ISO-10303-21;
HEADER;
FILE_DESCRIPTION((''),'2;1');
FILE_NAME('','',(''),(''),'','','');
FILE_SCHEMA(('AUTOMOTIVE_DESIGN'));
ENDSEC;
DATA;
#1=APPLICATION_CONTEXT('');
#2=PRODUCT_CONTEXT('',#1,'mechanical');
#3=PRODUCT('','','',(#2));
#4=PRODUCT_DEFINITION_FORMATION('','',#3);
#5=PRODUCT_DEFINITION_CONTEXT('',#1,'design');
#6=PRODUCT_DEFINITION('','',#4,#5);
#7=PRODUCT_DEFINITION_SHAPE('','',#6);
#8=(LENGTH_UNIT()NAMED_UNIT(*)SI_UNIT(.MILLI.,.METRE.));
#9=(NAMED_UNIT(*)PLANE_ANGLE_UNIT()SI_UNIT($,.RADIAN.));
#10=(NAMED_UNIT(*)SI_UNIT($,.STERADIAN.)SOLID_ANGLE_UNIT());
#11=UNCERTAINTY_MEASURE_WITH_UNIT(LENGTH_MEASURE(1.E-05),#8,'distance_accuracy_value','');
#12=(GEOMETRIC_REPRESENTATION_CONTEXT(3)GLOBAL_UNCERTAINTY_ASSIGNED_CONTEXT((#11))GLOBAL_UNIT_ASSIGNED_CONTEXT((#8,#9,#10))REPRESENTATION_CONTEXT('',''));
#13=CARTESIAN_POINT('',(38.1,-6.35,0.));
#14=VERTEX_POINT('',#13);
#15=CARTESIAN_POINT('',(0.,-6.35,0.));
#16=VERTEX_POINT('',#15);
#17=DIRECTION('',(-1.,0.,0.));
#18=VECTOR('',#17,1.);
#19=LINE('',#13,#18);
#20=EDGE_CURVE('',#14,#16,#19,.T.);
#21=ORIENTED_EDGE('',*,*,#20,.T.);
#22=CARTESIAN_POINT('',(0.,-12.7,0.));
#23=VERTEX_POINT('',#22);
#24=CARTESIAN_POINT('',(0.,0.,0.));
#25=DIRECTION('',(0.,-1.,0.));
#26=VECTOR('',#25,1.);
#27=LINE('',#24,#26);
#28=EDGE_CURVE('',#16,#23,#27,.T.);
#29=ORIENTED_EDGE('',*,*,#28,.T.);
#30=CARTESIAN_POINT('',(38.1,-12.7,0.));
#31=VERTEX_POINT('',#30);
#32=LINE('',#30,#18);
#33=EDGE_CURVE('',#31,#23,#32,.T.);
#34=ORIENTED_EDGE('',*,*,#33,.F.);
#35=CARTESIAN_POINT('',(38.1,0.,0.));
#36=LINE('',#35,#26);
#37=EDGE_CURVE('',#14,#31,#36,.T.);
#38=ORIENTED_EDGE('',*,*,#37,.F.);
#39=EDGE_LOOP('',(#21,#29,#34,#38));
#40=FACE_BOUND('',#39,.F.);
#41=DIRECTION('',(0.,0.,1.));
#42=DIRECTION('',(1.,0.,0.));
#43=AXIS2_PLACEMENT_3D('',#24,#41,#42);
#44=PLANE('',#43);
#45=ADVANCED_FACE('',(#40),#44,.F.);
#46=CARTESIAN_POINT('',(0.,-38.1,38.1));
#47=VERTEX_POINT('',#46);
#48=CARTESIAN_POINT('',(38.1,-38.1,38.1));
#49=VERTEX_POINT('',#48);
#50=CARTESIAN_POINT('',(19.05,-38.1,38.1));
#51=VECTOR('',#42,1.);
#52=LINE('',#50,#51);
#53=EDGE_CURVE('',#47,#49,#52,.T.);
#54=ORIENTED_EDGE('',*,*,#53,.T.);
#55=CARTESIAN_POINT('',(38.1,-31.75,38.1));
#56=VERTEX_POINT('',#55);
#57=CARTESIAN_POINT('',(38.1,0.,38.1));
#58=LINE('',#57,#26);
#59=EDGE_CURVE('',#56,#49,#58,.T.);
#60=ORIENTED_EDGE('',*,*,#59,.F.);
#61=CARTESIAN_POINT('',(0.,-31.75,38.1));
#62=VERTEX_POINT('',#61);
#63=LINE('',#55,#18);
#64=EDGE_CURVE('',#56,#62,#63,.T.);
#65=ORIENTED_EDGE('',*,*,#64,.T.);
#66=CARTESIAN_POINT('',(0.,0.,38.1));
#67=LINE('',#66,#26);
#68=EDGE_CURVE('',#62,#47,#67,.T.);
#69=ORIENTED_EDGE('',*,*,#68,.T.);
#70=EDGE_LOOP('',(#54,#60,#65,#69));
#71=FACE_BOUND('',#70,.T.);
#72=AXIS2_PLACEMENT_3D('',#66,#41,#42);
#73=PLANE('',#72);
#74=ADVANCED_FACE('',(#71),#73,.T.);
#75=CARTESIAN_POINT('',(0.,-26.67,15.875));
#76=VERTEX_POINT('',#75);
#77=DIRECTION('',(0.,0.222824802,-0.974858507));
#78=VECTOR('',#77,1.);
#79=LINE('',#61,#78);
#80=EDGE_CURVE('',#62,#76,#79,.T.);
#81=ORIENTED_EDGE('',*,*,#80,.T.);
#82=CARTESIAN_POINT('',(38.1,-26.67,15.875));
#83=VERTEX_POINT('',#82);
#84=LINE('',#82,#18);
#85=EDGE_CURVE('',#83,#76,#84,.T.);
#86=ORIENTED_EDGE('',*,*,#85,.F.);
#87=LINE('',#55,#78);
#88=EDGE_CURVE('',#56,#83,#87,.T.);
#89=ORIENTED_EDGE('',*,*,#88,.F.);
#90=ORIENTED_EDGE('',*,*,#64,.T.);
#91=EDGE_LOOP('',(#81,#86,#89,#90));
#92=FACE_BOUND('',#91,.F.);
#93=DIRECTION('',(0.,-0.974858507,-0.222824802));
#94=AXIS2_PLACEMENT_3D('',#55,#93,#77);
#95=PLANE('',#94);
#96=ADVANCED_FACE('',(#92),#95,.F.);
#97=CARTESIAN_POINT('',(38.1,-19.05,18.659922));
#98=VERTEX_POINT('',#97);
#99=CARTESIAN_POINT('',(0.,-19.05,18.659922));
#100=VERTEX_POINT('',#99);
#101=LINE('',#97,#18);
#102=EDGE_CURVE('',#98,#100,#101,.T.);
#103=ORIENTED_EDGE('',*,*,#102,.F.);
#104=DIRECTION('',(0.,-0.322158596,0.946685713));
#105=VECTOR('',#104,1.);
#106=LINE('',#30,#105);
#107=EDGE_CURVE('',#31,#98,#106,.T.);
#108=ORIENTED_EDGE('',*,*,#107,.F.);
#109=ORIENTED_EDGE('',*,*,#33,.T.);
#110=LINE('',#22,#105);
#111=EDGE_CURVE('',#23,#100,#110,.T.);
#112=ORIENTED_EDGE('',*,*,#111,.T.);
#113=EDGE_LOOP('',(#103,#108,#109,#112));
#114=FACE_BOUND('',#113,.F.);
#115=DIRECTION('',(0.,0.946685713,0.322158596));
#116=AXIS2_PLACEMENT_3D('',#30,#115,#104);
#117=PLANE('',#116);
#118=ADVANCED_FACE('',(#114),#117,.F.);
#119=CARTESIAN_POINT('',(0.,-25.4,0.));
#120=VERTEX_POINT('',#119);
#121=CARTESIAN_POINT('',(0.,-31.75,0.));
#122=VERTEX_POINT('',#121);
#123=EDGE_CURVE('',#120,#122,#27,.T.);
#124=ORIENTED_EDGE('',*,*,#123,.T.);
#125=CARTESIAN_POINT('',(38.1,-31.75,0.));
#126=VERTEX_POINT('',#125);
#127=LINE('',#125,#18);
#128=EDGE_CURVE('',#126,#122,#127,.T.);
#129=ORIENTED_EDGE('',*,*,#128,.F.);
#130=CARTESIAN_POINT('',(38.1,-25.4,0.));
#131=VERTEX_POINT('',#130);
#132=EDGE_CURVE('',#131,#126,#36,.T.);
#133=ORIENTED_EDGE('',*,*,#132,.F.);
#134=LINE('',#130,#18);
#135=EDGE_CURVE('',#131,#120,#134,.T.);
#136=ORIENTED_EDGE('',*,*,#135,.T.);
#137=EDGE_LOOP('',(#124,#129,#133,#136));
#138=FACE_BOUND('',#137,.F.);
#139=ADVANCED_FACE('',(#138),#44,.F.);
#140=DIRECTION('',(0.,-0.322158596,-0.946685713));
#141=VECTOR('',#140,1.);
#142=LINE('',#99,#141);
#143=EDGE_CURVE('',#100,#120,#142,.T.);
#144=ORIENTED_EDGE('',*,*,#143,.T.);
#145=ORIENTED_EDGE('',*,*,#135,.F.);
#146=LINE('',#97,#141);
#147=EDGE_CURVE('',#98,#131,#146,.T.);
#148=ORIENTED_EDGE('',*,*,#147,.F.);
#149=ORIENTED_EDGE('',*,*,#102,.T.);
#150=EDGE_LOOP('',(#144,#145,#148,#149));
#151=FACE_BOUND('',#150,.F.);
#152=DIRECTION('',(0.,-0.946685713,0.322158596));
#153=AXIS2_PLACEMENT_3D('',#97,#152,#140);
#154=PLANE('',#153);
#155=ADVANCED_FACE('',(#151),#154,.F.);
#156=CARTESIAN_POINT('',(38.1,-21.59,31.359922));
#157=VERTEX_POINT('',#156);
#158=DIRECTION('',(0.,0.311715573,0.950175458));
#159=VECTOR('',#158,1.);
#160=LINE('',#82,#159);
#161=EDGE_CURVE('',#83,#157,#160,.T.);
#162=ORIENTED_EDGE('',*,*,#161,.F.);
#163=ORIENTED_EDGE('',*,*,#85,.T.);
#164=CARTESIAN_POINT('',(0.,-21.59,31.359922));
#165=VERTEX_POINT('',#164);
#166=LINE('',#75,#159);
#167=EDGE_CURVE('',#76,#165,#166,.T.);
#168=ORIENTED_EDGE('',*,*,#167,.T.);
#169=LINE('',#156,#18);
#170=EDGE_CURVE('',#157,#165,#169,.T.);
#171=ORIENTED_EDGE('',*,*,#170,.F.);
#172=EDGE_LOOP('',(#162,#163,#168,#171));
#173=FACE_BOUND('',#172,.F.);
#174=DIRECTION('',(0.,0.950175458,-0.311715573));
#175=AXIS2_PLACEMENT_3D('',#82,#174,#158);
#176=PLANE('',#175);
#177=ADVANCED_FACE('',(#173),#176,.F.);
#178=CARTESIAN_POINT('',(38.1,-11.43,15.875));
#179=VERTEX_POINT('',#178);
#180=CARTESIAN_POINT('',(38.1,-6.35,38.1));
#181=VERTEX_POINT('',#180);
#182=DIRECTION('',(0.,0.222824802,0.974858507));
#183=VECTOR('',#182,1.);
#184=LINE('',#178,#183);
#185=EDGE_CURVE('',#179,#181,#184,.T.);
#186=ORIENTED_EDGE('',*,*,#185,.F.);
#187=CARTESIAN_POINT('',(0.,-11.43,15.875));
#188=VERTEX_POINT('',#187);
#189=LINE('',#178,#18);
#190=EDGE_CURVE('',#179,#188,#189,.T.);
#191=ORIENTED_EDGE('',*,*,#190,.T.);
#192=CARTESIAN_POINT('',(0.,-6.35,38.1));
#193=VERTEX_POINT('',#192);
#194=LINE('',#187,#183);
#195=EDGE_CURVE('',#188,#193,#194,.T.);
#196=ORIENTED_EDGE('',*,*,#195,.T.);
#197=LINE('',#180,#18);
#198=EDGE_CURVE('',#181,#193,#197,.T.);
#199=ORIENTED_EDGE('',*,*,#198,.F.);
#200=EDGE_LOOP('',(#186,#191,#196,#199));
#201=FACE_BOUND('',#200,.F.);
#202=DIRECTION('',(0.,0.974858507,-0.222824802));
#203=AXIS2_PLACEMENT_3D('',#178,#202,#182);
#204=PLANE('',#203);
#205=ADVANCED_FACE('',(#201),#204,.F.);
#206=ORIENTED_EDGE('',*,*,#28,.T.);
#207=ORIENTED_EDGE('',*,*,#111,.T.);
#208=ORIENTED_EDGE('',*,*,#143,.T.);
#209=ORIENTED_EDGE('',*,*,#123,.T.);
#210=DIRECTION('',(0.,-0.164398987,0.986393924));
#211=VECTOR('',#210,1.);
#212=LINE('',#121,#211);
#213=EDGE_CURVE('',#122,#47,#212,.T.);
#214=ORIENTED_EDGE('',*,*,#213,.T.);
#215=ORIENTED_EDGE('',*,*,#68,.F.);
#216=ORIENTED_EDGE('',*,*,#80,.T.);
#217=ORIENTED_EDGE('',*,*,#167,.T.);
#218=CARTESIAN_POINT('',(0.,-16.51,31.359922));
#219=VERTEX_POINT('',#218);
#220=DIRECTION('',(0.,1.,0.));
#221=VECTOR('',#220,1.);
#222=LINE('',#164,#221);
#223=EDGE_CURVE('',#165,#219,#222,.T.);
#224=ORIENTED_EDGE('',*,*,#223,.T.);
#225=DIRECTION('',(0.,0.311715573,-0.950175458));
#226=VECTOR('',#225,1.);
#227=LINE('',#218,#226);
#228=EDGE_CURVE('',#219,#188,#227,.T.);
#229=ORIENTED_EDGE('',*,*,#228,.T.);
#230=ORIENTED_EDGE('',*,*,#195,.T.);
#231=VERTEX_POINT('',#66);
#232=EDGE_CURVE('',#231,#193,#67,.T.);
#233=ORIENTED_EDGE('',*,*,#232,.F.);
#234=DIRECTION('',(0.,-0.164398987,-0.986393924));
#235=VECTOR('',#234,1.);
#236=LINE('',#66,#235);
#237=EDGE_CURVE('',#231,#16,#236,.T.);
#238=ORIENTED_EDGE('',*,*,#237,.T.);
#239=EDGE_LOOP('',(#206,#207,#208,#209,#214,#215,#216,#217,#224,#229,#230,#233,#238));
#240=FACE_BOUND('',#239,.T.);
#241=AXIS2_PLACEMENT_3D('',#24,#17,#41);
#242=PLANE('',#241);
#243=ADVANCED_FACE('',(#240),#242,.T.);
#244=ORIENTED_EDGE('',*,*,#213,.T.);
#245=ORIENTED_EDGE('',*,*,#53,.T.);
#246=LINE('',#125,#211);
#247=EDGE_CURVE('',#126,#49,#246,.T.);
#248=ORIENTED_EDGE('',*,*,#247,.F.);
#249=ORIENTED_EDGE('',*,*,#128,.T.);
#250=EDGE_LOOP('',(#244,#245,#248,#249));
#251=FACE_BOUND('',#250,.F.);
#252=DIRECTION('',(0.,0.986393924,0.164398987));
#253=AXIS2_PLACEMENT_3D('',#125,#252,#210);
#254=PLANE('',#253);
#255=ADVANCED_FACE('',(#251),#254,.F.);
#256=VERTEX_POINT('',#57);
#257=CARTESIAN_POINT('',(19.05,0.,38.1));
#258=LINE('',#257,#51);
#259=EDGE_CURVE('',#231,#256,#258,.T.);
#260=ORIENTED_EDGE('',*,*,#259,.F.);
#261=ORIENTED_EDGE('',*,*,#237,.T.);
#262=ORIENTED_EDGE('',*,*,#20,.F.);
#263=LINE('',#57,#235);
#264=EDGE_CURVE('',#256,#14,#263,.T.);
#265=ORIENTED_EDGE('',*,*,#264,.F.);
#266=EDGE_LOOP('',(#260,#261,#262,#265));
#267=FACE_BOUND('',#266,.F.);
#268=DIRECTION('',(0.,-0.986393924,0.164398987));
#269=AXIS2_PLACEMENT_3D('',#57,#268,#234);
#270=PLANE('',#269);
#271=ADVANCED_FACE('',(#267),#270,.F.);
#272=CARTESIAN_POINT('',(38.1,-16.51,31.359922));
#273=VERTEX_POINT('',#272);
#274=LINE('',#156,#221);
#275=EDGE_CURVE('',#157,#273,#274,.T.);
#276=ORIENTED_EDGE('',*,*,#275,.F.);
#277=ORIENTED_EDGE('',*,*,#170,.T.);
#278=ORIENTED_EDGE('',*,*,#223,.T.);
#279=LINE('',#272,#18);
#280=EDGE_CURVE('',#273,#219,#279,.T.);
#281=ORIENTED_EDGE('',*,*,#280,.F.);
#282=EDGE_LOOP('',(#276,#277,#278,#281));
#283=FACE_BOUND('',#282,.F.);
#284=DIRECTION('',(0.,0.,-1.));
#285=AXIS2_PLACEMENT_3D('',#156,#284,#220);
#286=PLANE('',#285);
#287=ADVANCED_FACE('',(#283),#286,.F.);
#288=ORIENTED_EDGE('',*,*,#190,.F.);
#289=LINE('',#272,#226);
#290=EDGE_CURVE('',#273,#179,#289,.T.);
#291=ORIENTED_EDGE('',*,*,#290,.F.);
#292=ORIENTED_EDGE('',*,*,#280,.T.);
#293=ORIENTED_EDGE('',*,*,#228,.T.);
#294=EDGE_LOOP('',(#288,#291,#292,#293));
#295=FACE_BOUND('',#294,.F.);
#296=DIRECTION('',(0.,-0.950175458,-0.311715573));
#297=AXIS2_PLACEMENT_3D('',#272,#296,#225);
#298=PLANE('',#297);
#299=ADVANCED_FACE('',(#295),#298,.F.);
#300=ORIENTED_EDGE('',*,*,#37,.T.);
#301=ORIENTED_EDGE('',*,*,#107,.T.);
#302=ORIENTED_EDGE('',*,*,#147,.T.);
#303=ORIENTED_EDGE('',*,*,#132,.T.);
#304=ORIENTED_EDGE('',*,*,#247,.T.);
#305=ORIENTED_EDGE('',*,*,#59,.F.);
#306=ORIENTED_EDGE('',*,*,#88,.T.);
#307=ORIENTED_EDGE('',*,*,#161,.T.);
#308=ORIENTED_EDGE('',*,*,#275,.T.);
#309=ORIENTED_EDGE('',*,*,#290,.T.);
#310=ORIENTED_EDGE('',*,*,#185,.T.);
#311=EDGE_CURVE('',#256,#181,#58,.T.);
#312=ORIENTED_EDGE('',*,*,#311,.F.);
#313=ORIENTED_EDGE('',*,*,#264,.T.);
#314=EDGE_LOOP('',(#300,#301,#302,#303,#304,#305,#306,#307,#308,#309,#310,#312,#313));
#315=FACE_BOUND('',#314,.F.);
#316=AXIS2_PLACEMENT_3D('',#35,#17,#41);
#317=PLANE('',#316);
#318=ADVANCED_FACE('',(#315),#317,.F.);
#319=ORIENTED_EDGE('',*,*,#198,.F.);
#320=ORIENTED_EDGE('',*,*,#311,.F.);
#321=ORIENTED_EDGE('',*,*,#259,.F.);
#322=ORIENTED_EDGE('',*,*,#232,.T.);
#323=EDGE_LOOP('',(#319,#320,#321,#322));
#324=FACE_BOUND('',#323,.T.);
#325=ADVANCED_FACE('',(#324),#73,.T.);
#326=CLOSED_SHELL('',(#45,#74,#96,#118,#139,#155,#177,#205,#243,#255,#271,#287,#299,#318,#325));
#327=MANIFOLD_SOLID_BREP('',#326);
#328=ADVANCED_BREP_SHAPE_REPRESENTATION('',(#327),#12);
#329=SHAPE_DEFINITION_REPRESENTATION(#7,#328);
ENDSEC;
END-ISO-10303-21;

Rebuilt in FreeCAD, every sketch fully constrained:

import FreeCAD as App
import Part
import Sketcher
Q = App.Units.Quantity


def add_polygon(sketch, points):
    """Adds a closed chain of lines whose ends are joined by coincident constraints."""
    first, n = sketch.GeometryCount, len(points)
    for a, b in zip(points, points[1:] + points[:1]):
        sketch.addGeometry(Part.LineSegment(App.Vector(*a, 0), App.Vector(*b, 0)), False)
    for i in range(n):
        sketch.addConstraint(Sketcher.Constraint("Coincident", first + i, 2, first + (i + 1) % n, 1))

doc = App.newDocument("Part")
params = doc.addObject("Spreadsheet::Sheet", "Params")
for row, (alias, value) in enumerate([
    ("sketch1_width", "1.5 in"),
    ("pad1_length", "1.5 in"),
    ("sketch2_width", "1 in"),
    ("sketch2_width2", "0.5 in"),
    ("sketch2_width3", "0.2 in"),
    ("sketch2_height", "1.5 in"),
    ("pocket1_length", "1.5 in"),
], start=1):
    params.set(f"A{row}", alias)
    params.set(f"B{row}", "=" + value)
    params.setAlias(f"B{row}", alias)

body = doc.addObject("PartDesign::Body", "Body")

# Sketch on XZ plane
sketch1 = body.newObject("Sketcher::SketchObject", "Sketch")
sketch1.AttachmentSupport = (doc.getObject("XZ_Plane"), [""])
sketch1.MapMode = "FlatFace"
add_polygon(sketch1, [(0, 38.1), (0, 0), (38.1, 0), (38.1, 38.1)])  # lines 0-3
sketch1.addConstraint(Sketcher.Constraint("Vertical", 0))
sketch1.addConstraint(Sketcher.Constraint("Horizontal", 1))
sketch1.addConstraint(Sketcher.Constraint("Vertical", 2))
sketch1.addConstraint(Sketcher.Constraint("Horizontal", 3))
sketch1.addConstraint(Sketcher.Constraint("Coincident", 0, 2, -1, 1))
sketch1.addConstraint(Sketcher.Constraint("Equal", 3, 0))
sketch1.addConstraint(Sketcher.Constraint("DistanceX", 1, 1, 1, 2, Q("1.5 in")))
sketch1.setExpression("Constraints[10]", "Params.sketch1_width")
pad1 = body.newObject("PartDesign::Pad", "Pad")
pad1.Profile = sketch1
pad1.setExpression("Length", "Params.pad1_length")

# Sketch on YZ plane
sketch2 = body.newObject("Sketcher::SketchObject", "Sketch001")
sketch2.AttachmentSupport = (doc.getObject("YZ_Plane"), [""])
sketch2.MapMode = "FlatFace"
sketch2.AttachmentOffset = App.Placement(App.Vector(0, 0, 1.5 * 25.4), App.Rotation())
add_polygon(sketch2, [(-31.75, 0), (-38.1, 38.1), (-38.1, 0)])  # lines 0-2
add_polygon(sketch2, [(-12.7, 0), (-19.05, 18.659922), (-25.4, 0)])  # lines 3-5
add_polygon(sketch2, [(-6.35, 0), (0, 0), (0, 38.1)])  # lines 6-8
add_polygon(sketch2, [(-11.43, 15.875), (-6.35, 38.1), (-31.75, 38.1), (-26.67, 15.875), (-21.59, 31.359922), (-16.51, 31.359922)])  # lines 9-14
sketch2.addConstraint(Sketcher.Constraint("Vertical", 1))
sketch2.addConstraint(Sketcher.Constraint("Horizontal", 2))
sketch2.addConstraint(Sketcher.Constraint("Horizontal", 5))
sketch2.addConstraint(Sketcher.Constraint("Horizontal", 6))
sketch2.addConstraint(Sketcher.Constraint("Vertical", 7))
sketch2.addConstraint(Sketcher.Constraint("Horizontal", 10))
sketch2.addConstraint(Sketcher.Constraint("Horizontal", 13))
sketch2.addConstraint(Sketcher.Constraint("Coincident", 6, 2, -1, 1))
sketch2.addConstraint(Sketcher.Constraint("PointOnObject", 1, 2, -1))
sketch2.addConstraint(Sketcher.Constraint("PointOnObject", 4, 2, -1))
sketch2.addConstraint(Sketcher.Constraint("Horizontal", 0, 2, 7, 2))
sketch2.addConstraint(Sketcher.Constraint("Horizontal", 7, 2, 9, 2))
sketch2.addConstraint(Sketcher.Constraint("Horizontal", 11, 2, 14, 2))
sketch2.addConstraint(Sketcher.Constraint("Vertical", 8, 2, 9, 2))
sketch2.addConstraint(Sketcher.Constraint("Vertical", 2, 2, 10, 2))
sketch2.addConstraint(Sketcher.Constraint("Equal", 2, 6))
sketch2.addConstraint(Sketcher.Constraint("Equal", 3, 4))
sketch2.addConstraint(Sketcher.Constraint("Equal", 9, 11))
sketch2.addConstraint(Sketcher.Constraint("Equal", 12, 14))
sketch2.addConstraint(Sketcher.Constraint("DistanceX", 10, 2, 10, 1, Q("1 in")))
sketch2.addConstraint(Sketcher.Constraint("DistanceX", 5, 1, 5, 2, Q("0.5 in")))
sketch2.addConstraint(Sketcher.Constraint("DistanceX", 13, 1, 13, 2, Q("0.2 in")))
sketch2.addConstraint(Sketcher.Constraint("DistanceY", 1, 2, 1, 1, Q("1.5 in")))
sketch2.addConstraint(Sketcher.Constraint("DistanceX", 4, 2, -1, 1, Q("1 in")))
sketch2.addConstraint(Sketcher.Constraint("DistanceX", 1, 2, 5, 2, Q("1 in")))
sketch2.addConstraint(Sketcher.Constraint("DistanceX", 11, 2, 3, 2, Q("0.3 in")))
sketch2.addConstraint(Sketcher.Constraint("DistanceY", 3, 2, 12, 2, Q("0.5 in")))
sketch2.addConstraint(Sketcher.Constraint("DistanceY", -1, 1, 11, 2, Q("0.625 in")))
sketch2.addConstraint(Sketcher.Constraint("Distance", 3, Q("19.710789 mm")))
sketch2.setExpression("Constraints[34]", "Params.sketch2_width")
sketch2.setExpression("Constraints[35]", "Params.sketch2_width2")
sketch2.setExpression("Constraints[36]", "Params.sketch2_width3")
sketch2.setExpression("Constraints[37]", "Params.sketch2_height")
pocket1 = body.newObject("PartDesign::Pocket", "Pocket")
pocket1.Profile = sketch2
pocket1.setExpression("Length", "Params.pocket1_length")

doc.recompute()
